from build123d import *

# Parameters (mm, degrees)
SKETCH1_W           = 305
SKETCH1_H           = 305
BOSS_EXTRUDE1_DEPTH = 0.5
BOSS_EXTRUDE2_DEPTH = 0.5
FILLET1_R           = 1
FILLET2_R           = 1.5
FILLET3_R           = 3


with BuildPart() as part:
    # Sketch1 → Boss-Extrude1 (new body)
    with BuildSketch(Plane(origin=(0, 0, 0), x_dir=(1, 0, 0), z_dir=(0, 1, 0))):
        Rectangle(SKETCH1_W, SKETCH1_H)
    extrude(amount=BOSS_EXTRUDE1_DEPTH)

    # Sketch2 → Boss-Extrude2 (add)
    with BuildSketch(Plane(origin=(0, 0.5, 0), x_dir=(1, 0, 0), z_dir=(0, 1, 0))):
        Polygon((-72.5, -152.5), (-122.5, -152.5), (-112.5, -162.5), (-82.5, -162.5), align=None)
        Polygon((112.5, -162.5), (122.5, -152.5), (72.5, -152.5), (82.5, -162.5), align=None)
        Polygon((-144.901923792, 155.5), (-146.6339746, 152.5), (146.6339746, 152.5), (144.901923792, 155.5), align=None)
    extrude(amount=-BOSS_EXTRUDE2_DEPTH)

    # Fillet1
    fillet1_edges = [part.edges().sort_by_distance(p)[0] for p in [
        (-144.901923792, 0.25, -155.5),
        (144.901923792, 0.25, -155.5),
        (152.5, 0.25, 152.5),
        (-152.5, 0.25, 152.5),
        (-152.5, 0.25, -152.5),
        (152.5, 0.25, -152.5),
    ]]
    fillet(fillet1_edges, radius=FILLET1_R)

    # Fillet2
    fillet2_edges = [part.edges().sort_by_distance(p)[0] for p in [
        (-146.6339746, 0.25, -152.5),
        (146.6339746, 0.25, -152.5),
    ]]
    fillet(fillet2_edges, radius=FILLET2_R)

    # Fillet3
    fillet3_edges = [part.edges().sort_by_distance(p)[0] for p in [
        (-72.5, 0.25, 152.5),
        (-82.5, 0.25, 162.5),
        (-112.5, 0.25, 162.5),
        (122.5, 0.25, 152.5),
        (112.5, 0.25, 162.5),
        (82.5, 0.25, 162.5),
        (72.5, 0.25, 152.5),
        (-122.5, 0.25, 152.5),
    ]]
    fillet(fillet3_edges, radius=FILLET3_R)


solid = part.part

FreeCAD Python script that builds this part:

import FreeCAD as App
import Part
import Sketcher
Q = App.Units.Quantity


def edges_at(feature, points):
    """Names of the edges that pass closest to the given points."""
    edges = feature.Shape.Edges
    near = lambda p: min(range(len(edges)), key=lambda i: edges[i].distToShape(Part.Vertex(*p))[0])
    return sorted({f"Edge{near(p) + 1}" for p in points})

doc = App.newDocument("Part")
params = doc.addObject("Spreadsheet::Sheet", "Params")
for row, (alias, value) in enumerate([
    ("sketch1_width", "305 mm"),
    ("pad1_length", "0.5 mm"),
    ("sketch2_width", "50 mm"),
    ("sketch2_width2", "30 mm"),
    ("pad2_length", "0.5 mm"),
    ("fillet_radius", "1 mm"),
    ("fillet2_radius", "1.5 mm"),
    ("fillet3_radius", "3 mm"),
], start=1):
    params.set(f"A{row}", alias)
    params.set(f"B{row}", "=" + value)
    params.setAlias(f"B{row}", alias)

body = doc.addObject("PartDesign::Body", "Body")

# Sketch on XZ plane
sketch1 = body.newObject("Sketcher::SketchObject", "Sketch")
sketch1.AttachmentSupport = (doc.getObject("XZ_Plane"), [""])
sketch1.MapMode = "FlatFace"
sketch1.addGeometry([
    Part.LineSegment(App.Vector(-152.5, -152.5, 0), App.Vector(-152.5, 152.5, 0)),
    Part.LineSegment(App.Vector(-152.5, 152.5, 0), App.Vector(152.5, 152.5, 0)),
    Part.LineSegment(App.Vector(152.5, 152.5, 0), App.Vector(152.5, -152.5, 0)),
    Part.LineSegment(App.Vector(152.5, -152.5, 0), App.Vector(-152.5, -152.5, 0)),
], False)
sketch1.addConstraint([
    Sketcher.Constraint("Coincident", 0, 2, 1, 1),
    Sketcher.Constraint("Coincident", 1, 2, 2, 1),
    Sketcher.Constraint("Coincident", 2, 2, 3, 1),
    Sketcher.Constraint("Coincident", 3, 2, 0, 1),
    Sketcher.Constraint("Vertical", 0),
    Sketcher.Constraint("Horizontal", 1),
    Sketcher.Constraint("Vertical", 2),
    Sketcher.Constraint("Horizontal", 3),
    Sketcher.Constraint("Symmetric", 0, 2, 2, 2, -1, 1),
    Sketcher.Constraint("Equal", 3, 0),
    Sketcher.Constraint("DistanceX", 1, 1, 1, 2, 305.0),
])
sketch1.setExpression("Constraints[10]", "Params.sketch1_width")
pad1 = body.newObject("PartDesign::Pad", "Pad")
pad1.Profile = sketch1
pad1.setExpression("Length", "Params.pad1_length")
pad1.Reversed = True

# Sketch on XZ plane
sketch2 = body.newObject("Sketcher::SketchObject", "Sketch001")
sketch2.AttachmentSupport = (doc.getObject("XZ_Plane"), [""])
sketch2.MapMode = "FlatFace"
sketch2.AttachmentOffset = App.Placement(App.Vector(0, 0, -0.5), App.Rotation())
sketch2.addGeometry([
    Part.LineSegment(App.Vector(-72.5, 152.5, 0), App.Vector(-122.5, 152.5, 0)),  # 0
    Part.LineSegment(App.Vector(-122.5, 152.5, 0), App.Vector(-112.5, 162.5, 0)),  # 1
    Part.LineSegment(App.Vector(-112.5, 162.5, 0), App.Vector(-82.5, 162.5, 0)),  # 2
    Part.LineSegment(App.Vector(-82.5, 162.5, 0), App.Vector(-72.5, 152.5, 0)),  # 3
    Part.LineSegment(App.Vector(112.5, 162.5, 0), App.Vector(122.5, 152.5, 0)),  # 4
    Part.LineSegment(App.Vector(122.5, 152.5, 0), App.Vector(72.5, 152.5, 0)),  # 5
    Part.LineSegment(App.Vector(72.5, 152.5, 0), App.Vector(82.5, 162.5, 0)),  # 6
    Part.LineSegment(App.Vector(82.5, 162.5, 0), App.Vector(112.5, 162.5, 0)),  # 7
    Part.LineSegment(App.Vector(-144.901924, -155.5, 0), App.Vector(-146.633975, -152.5, 0)),  # 8
    Part.LineSegment(App.Vector(-146.633975, -152.5, 0), App.Vector(146.633975, -152.5, 0)),  # 9
    Part.LineSegment(App.Vector(146.633975, -152.5, 0), App.Vector(144.901924, -155.5, 0)),  # 10
    Part.LineSegment(App.Vector(144.901924, -155.5, 0), App.Vector(-144.901924, -155.5, 0)),  # 11
], False)
sketch2.addConstraint([
    Sketcher.Constraint("Coincident", 0, 2, 1, 1),
    Sketcher.Constraint("Coincident", 1, 2, 2, 1),
    Sketcher.Constraint("Coincident", 2, 2, 3, 1),
    Sketcher.Constraint("Coincident", 3, 2, 0, 1),
    Sketcher.Constraint("Coincident", 4, 2, 5, 1),
    Sketcher.Constraint("Coincident", 5, 2, 6, 1),
    Sketcher.Constraint("Coincident", 6, 2, 7, 1),
    Sketcher.Constraint("Coincident", 7, 2, 4, 1),
    Sketcher.Constraint("Coincident", 8, 2, 9, 1),
    Sketcher.Constraint("Coincident", 9, 2, 10, 1),
    Sketcher.Constraint("Coincident", 10, 2, 11, 1),
    Sketcher.Constraint("Coincident", 11, 2, 8, 1),
    Sketcher.Constraint("Horizontal", 0),
    Sketcher.Constraint("Horizontal", 2),
    Sketcher.Constraint("Horizontal", 5),
    Sketcher.Constraint("Horizontal", 7),
    Sketcher.Constraint("Horizontal", 9),
    Sketcher.Constraint("Horizontal", 11),
    Sketcher.Constraint("Symmetric", 0, 2, 4, 2, -2),
    Sketcher.Constraint("Symmetric", 2, 2, 6, 2, -2),
    Sketcher.Constraint("Perpendicular", 1, 3),
    Sketcher.Constraint("Parallel", 3, 4),
    Sketcher.Constraint("Perpendicular", 4, 6),
    Sketcher.Constraint("Equal", 0, 5),
    Sketcher.Constraint("Equal", 8, 10),
    Sketcher.Constraint("DistanceX", 0, 2, 0, 1, 50.0),
    Sketcher.Constraint("DistanceX", 2, 1, 2, 2, 30.0),
    Sketcher.Constraint("Angle", 8, Q("120 deg")),
    Sketcher.Constraint("DistanceX", 3, 2, 4, 2, 195.0),
    Sketcher.Constraint("DistanceY", 8, 2, 0, 2, 305.0),
    Sketcher.Constraint("DistanceY", 10, 2, 9, 2, 3.0),
    Sketcher.Constraint("DistanceY", -1, 1, 0, 2, 152.5),
    Sketcher.Constraint("DistanceX", 9, 1, 9, 2, 293.267949),
    Sketcher.Constraint("DistanceX", 8, 2, -1, 1, 146.633975),
])
sketch2.setExpression("Constraints[25]", "Params.sketch2_width")
sketch2.setExpression("Constraints[26]", "Params.sketch2_width2")
pad2 = body.newObject("PartDesign::Pad", "Pad001")
pad2.Profile = sketch2
pad2.setExpression("Length", "Params.pad2_length")
doc.recompute()

fillet = body.newObject("PartDesign::Fillet", "Fillet")
fillet.Base = (pad2, edges_at(pad2, [
    (-144.902, 0.25, -155.5),
    (144.902, 0.25, -155.5),
    (152.5, 0.25, 152.5),
    (-152.5, 0.25, 152.5),
    (-152.5, 0.25, -152.5),
    (152.5, 0.25, -152.5),
]))
fillet.setExpression("Radius", "Params.fillet_radius")
doc.recompute()

fillet2 = body.newObject("PartDesign::Fillet", "Fillet001")
fillet2.Base = (fillet, edges_at(fillet, [(-146.634, 0.25, -152.5), (146.634, 0.25, -152.5)]))
fillet2.setExpression("Radius", "Params.fillet2_radius")
doc.recompute()

fillet3 = body.newObject("PartDesign::Fillet", "Fillet002")
fillet3.Base = (fillet2, edges_at(fillet2, [
    (-72.5, 0.25, 152.5),
    (-82.5, 0.25, 162.5),
    (-112.5, 0.25, 162.5),
    (122.5, 0.25, 152.5),
    (112.5, 0.25, 162.5),
    (82.5, 0.25, 162.5),
    (72.5, 0.25, 152.5),
    (-122.5, 0.25, 152.5),
]))
fillet3.setExpression("Radius", "Params.fillet3_radius")

doc.recompute()
